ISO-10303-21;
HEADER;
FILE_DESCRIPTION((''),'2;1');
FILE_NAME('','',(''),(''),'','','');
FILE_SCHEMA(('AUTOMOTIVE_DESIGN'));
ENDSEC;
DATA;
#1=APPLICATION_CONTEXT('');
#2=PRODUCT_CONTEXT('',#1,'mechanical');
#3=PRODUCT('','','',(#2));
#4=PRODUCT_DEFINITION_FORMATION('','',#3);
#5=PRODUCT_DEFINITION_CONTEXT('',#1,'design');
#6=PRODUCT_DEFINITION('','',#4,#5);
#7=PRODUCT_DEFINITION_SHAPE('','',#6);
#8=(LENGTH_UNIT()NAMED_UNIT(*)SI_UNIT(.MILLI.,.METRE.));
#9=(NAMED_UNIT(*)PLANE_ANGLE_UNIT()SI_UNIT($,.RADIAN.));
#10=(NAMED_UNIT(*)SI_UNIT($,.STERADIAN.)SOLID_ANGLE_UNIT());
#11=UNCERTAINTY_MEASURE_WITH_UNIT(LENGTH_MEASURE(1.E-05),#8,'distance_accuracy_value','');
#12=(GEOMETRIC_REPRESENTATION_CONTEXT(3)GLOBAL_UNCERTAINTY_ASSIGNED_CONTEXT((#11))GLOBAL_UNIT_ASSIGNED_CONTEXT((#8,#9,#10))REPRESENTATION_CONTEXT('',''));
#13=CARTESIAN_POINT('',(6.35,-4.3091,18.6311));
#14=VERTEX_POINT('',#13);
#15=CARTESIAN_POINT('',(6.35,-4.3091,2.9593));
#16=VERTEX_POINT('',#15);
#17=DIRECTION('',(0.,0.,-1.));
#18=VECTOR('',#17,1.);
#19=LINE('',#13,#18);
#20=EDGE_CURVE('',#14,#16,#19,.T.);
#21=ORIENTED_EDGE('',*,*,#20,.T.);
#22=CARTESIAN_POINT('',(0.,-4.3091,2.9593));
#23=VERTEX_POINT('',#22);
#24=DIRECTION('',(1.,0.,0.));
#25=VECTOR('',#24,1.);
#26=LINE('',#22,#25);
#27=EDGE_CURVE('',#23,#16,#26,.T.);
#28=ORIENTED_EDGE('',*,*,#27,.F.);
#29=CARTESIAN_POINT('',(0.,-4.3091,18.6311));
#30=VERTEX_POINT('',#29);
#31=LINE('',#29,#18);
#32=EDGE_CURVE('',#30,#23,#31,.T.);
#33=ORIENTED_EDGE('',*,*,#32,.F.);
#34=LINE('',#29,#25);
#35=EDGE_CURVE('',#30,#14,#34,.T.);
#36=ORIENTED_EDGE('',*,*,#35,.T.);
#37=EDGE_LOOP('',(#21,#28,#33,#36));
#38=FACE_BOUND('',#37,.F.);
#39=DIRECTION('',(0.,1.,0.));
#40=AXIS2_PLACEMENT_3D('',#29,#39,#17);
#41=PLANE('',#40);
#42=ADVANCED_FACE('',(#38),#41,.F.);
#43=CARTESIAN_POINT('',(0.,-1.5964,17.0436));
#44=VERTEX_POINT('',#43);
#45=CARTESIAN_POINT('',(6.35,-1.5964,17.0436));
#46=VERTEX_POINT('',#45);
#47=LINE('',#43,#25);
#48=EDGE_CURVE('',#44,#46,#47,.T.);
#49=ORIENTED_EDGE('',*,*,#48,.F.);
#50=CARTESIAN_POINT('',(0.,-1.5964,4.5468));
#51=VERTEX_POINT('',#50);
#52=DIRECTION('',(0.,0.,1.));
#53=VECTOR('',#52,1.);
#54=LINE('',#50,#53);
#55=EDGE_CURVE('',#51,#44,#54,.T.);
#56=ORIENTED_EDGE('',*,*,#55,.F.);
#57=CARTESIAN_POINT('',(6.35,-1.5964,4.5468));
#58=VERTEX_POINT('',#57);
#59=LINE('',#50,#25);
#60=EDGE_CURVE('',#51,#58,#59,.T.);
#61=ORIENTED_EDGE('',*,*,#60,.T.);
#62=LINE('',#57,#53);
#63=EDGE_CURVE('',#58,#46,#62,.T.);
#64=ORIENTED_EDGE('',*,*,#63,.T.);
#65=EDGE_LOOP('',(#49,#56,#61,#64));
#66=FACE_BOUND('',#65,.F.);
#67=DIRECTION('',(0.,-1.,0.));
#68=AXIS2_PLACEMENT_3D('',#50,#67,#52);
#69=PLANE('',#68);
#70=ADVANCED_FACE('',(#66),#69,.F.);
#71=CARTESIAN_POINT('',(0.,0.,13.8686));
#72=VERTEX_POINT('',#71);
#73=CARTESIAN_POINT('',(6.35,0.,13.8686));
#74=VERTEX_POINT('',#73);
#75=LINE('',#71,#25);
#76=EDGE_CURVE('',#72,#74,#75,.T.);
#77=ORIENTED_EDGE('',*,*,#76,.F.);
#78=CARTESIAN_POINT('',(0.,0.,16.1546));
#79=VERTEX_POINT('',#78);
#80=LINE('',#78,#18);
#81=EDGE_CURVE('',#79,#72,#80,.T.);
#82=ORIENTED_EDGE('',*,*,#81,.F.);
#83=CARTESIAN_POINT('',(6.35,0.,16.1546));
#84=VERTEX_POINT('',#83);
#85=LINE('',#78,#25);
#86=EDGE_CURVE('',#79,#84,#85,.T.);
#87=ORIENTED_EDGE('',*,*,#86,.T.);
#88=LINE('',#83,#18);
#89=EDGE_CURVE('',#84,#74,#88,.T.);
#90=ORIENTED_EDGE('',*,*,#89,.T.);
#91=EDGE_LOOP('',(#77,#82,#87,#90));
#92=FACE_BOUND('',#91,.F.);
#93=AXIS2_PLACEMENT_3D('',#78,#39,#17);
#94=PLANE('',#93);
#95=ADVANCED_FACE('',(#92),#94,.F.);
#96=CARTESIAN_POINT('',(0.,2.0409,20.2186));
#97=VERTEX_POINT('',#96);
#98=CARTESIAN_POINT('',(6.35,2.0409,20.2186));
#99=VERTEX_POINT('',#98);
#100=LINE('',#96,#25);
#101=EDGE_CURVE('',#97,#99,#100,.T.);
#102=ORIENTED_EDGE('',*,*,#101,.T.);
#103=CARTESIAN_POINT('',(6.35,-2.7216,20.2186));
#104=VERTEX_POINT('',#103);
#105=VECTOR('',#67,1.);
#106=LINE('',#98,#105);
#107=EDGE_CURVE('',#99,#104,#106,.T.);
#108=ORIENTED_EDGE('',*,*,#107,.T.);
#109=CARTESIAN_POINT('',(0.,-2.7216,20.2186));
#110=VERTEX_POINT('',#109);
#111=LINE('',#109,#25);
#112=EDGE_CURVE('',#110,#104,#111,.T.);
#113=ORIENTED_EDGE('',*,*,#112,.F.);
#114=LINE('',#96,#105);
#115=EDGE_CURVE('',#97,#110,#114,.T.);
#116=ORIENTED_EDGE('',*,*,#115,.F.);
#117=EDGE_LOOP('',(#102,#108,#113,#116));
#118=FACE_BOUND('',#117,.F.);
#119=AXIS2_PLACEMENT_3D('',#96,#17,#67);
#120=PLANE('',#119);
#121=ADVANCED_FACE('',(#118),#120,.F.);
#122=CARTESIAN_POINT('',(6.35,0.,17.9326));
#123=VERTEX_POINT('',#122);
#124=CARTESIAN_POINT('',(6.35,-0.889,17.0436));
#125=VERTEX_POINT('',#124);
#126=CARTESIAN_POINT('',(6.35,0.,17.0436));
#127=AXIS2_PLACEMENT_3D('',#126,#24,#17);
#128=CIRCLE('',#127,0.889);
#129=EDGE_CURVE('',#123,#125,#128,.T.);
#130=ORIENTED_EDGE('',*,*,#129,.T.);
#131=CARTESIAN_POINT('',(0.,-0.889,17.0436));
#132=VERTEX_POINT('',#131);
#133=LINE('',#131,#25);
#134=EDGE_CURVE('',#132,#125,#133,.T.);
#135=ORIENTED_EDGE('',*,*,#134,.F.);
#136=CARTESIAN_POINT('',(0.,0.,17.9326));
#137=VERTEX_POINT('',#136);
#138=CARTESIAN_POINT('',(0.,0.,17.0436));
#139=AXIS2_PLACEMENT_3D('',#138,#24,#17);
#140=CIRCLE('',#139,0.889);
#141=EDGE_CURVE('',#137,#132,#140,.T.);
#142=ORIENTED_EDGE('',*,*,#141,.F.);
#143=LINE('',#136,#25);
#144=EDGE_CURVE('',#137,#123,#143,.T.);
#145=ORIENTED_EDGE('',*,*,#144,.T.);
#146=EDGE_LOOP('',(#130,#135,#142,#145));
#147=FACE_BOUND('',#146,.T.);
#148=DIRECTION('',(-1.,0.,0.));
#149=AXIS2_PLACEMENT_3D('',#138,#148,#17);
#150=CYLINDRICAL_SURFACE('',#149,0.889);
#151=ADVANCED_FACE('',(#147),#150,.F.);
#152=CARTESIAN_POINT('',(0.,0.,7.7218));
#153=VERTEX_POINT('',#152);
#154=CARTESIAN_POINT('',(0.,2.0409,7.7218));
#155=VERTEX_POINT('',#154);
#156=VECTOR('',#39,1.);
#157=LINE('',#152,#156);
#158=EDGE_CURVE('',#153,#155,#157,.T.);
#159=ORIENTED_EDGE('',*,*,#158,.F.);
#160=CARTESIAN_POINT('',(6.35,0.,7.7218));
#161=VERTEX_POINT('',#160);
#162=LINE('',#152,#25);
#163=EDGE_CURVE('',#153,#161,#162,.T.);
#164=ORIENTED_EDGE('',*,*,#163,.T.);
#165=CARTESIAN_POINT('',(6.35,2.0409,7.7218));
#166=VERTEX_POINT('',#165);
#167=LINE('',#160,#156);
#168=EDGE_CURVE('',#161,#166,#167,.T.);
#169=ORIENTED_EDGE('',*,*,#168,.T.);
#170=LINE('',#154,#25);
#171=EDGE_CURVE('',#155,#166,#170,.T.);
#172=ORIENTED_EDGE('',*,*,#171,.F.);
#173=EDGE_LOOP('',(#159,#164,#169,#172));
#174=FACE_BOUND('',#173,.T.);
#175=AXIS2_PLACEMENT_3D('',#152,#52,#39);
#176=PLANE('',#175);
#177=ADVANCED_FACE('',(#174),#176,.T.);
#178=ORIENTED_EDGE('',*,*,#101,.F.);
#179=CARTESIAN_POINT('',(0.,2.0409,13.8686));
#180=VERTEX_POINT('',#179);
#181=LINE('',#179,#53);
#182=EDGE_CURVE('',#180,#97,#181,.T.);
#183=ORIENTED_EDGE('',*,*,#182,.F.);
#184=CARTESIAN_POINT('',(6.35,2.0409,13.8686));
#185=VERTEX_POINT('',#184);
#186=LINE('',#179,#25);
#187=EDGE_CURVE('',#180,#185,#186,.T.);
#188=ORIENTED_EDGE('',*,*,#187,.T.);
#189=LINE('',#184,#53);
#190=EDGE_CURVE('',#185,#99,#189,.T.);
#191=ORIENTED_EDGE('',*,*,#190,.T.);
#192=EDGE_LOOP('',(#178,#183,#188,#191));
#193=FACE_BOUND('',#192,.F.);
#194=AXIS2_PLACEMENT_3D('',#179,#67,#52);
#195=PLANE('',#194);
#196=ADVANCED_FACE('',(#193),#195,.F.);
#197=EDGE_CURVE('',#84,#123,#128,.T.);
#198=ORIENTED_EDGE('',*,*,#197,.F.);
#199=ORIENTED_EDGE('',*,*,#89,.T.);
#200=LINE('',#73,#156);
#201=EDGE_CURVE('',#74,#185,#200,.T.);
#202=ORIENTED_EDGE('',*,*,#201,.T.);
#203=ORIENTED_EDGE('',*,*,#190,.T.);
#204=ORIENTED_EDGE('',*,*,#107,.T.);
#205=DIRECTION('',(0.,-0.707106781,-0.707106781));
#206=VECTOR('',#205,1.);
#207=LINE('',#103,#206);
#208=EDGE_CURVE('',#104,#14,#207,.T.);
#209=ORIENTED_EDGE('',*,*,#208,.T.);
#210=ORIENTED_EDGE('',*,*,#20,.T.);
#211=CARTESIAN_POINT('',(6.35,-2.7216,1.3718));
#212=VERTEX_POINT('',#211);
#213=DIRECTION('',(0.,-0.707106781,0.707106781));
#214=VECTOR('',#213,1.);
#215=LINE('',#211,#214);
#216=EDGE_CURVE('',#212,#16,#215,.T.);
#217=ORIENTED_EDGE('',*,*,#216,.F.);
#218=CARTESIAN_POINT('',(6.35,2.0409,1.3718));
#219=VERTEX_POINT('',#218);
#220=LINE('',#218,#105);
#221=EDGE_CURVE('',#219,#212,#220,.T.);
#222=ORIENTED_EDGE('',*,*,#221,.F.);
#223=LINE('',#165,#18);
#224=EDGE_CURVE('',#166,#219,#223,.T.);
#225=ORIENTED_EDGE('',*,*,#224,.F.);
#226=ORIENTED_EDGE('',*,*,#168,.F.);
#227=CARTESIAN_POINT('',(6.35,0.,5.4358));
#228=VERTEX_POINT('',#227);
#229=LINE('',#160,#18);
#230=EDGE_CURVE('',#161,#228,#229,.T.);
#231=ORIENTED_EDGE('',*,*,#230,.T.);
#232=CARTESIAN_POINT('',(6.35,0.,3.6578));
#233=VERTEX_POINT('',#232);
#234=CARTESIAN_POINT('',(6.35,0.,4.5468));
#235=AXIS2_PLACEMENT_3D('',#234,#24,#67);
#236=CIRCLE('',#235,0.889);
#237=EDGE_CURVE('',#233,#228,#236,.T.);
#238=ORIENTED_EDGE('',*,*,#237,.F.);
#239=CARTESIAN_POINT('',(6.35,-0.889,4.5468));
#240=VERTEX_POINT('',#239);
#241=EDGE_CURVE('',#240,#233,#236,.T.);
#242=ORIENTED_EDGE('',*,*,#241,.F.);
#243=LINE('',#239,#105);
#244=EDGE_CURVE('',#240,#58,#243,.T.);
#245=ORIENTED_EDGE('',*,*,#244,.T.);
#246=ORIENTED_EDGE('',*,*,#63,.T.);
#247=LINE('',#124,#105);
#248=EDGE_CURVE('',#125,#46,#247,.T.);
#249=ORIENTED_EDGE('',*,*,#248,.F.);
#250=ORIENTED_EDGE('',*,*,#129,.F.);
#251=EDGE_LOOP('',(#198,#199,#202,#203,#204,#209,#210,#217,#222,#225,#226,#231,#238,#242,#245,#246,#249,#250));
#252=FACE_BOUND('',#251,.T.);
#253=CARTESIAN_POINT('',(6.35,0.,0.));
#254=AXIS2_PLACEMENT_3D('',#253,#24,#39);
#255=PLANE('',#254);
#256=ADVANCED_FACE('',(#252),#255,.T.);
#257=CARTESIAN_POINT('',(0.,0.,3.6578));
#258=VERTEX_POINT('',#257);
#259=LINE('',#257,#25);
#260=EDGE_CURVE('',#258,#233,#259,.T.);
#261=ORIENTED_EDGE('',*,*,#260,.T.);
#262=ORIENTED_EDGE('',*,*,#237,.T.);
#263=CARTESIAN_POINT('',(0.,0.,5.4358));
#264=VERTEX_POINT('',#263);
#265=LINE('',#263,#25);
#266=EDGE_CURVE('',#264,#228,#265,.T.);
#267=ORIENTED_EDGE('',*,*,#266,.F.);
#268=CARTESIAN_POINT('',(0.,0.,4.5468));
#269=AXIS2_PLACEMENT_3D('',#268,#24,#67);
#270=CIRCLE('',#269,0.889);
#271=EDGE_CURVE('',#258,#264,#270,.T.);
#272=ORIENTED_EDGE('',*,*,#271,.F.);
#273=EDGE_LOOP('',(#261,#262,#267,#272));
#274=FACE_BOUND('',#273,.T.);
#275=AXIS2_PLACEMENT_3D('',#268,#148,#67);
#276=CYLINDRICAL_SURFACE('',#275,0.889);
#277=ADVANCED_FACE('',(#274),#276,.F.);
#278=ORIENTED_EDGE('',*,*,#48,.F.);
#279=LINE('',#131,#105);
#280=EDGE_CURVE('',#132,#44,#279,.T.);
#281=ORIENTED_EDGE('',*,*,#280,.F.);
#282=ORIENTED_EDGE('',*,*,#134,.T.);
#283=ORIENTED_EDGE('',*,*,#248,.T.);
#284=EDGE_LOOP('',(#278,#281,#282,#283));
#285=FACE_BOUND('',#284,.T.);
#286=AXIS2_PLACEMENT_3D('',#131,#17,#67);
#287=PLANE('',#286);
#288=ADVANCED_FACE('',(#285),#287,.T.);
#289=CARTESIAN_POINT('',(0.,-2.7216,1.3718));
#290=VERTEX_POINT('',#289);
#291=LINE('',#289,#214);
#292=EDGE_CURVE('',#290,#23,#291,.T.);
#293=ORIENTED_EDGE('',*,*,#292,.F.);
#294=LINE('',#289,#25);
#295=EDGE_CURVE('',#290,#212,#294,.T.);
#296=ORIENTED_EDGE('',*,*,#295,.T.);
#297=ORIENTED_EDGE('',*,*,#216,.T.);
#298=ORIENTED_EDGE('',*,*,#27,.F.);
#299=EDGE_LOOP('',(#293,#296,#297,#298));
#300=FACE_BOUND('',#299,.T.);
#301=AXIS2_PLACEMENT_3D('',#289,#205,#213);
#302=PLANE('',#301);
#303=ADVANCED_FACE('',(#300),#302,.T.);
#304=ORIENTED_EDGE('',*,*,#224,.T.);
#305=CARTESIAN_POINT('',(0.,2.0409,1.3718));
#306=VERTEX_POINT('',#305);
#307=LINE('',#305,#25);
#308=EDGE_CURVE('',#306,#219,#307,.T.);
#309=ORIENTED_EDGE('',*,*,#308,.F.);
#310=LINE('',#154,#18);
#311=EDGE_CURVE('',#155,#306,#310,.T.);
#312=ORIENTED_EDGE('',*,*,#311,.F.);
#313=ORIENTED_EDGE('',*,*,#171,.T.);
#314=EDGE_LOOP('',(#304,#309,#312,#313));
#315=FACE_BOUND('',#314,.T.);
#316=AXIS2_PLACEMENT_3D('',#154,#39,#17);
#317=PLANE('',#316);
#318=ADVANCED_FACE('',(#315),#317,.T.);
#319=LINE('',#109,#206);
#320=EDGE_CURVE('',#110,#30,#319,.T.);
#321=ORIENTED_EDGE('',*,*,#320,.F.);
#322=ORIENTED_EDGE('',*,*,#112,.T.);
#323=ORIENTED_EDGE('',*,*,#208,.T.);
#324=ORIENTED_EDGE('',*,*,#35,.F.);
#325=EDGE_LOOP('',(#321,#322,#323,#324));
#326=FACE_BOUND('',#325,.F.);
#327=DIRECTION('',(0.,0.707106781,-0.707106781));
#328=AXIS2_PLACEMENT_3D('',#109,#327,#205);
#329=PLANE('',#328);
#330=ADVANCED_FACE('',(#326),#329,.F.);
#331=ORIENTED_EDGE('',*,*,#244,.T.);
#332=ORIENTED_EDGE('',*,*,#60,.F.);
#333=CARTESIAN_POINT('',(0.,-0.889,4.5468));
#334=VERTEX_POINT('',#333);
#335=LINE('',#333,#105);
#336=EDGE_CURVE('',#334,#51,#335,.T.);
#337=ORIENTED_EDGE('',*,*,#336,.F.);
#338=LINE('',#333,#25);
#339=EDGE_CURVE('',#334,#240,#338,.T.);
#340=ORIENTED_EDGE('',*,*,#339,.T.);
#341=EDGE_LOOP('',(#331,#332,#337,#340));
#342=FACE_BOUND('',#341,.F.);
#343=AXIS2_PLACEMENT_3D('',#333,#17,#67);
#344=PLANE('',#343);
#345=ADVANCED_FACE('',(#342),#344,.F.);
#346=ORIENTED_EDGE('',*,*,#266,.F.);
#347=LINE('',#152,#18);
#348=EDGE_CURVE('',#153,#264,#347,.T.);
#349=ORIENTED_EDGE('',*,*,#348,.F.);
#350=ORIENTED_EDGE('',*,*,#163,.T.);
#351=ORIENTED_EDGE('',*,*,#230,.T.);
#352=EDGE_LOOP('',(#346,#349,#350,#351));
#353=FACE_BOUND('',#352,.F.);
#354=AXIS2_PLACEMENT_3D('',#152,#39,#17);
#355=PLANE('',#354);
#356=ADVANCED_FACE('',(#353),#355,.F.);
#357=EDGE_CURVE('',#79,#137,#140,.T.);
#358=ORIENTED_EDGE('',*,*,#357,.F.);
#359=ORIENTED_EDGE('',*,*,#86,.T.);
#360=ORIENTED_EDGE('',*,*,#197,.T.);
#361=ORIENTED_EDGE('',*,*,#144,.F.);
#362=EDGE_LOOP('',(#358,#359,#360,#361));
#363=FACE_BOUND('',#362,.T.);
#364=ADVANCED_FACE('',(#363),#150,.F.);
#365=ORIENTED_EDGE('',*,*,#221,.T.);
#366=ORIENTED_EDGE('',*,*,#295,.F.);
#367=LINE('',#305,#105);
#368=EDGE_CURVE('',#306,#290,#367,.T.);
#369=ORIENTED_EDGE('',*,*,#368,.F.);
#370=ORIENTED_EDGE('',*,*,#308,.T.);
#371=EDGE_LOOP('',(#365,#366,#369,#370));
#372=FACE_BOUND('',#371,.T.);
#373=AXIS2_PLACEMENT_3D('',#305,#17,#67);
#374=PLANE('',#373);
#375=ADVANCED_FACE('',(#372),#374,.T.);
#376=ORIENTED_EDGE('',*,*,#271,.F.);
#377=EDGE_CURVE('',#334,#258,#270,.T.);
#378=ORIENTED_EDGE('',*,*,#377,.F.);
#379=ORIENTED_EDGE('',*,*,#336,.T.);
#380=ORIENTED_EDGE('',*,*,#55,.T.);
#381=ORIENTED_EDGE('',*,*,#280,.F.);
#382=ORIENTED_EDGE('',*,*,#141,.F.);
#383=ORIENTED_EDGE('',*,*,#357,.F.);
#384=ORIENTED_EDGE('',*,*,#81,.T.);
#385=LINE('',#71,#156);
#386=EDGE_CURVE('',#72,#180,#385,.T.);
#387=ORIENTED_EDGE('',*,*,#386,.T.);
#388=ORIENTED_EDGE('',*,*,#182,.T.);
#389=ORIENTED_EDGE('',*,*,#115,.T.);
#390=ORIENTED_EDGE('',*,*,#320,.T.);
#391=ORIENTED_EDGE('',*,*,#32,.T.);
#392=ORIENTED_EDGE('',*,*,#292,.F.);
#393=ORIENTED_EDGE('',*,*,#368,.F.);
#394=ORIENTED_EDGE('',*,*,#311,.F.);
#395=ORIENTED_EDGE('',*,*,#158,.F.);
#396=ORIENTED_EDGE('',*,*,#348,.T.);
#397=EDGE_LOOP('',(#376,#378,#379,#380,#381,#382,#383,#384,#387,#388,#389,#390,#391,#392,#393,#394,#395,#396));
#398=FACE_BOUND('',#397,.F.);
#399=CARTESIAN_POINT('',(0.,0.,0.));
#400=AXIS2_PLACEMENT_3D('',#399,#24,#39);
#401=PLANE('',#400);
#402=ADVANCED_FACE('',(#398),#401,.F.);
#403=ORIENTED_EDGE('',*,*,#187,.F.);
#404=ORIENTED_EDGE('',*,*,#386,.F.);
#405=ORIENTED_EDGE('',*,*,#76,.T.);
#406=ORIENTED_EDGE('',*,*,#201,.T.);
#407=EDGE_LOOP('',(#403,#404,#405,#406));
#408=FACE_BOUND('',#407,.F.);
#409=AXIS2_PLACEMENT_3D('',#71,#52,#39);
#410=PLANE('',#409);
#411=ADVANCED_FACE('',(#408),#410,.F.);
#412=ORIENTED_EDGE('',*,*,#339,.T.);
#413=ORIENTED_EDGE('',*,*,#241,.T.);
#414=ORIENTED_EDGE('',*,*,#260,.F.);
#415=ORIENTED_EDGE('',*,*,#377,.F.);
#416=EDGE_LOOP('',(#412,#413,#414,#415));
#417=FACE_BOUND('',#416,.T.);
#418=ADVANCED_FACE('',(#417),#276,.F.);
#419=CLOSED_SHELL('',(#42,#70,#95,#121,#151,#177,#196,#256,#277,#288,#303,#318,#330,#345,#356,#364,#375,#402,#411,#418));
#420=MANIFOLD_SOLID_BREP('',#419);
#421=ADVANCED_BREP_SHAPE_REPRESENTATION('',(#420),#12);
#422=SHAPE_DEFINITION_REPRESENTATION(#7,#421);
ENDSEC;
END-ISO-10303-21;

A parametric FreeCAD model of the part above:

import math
import FreeCAD as App
import Part
import Sketcher
Q = App.Units.Quantity

doc = App.newDocument("Part")
body = doc.addObject("PartDesign::Body", "Body")

# Sketch on YZ plane
sketch1 = doc.addObject("Sketcher::SketchObject", "Sketch")
body.addObject(sketch1)
sketch1.AttachmentSupport = (doc.YZ_Plane, [""])
sketch1.MapMode = "FlatFace"
sketch1.addGeometry(Part.ArcOfCircle(Part.Circle(App.Vector(0, 17.0436, 0), App.Vector(0, 0, 1), 0.889), math.radians(-90), math.radians(180)), False)
sketch1.addGeometry(Part.LineSegment(App.Vector(0, 16.1546, 0), App.Vector(0, 13.8686, 0)), False)
sketch1.addGeometry(Part.LineSegment(App.Vector(0, 13.8686, 0), App.Vector(2.0409, 13.8686, 0)), False)
sketch1.addGeometry(Part.LineSegment(App.Vector(2.0409, 13.8686, 0), App.Vector(2.0409, 20.2186, 0)), False)
sketch1.addGeometry(Part.LineSegment(App.Vector(2.0409, 20.2186, 0), App.Vector(-2.7216, 20.2186, 0)), False)
sketch1.addGeometry(Part.LineSegment(App.Vector(-2.7216, 20.2186, 0), App.Vector(-4.3091, 18.6311, 0)), False)
sketch1.addGeometry(Part.LineSegment(App.Vector(-4.3091, 18.6311, 0), App.Vector(-4.3091, 2.9593, 0)), False)
sketch1.addGeometry(Part.LineSegment(App.Vector(-4.3091, 2.9593, 0), App.Vector(-2.7216, 1.3718, 0)), False)
sketch1.addGeometry(Part.LineSegment(App.Vector(-2.7216, 1.3718, 0), App.Vector(2.0409, 1.3718, 0)), False)
sketch1.addGeometry(Part.LineSegment(App.Vector(2.0409, 1.3718, 0), App.Vector(2.0409, 7.7218, 0)), False)
sketch1.addGeometry(Part.LineSegment(App.Vector(2.0409, 7.7218, 0), App.Vector(0, 7.7218, 0)), False)
sketch1.addGeometry(Part.LineSegment(App.Vector(0, 7.7218, 0), App.Vector(0, 5.4358, 0)), False)
sketch1.addGeometry(Part.ArcOfCircle(Part.Circle(App.Vector(0, 4.5468, 0), App.Vector(0, 0, 1), 0.889), math.radians(180), math.radians(450)), False)
sketch1.addGeometry(Part.LineSegment(App.Vector(-0.889, 4.5468, 0), App.Vector(-1.5964, 4.5468, 0)), False)
sketch1.addGeometry(Part.LineSegment(App.Vector(-1.5964, 4.5468, 0), App.Vector(-1.5964, 17.0436, 0)), False)
sketch1.addGeometry(Part.LineSegment(App.Vector(-1.5964, 17.0436, 0), App.Vector(-0.889, 17.0436, 0)), False)
sketch1.addConstraint(Sketcher.Constraint("Coincident", 0, 1, 1, 1))
sketch1.addConstraint(Sketcher.Constraint("Coincident", 1, 2, 2, 1))
sketch1.addConstraint(Sketcher.Constraint("Coincident", 2, 2, 3, 1))
sketch1.addConstraint(Sketcher.Constraint("Coincident", 3, 2, 4, 1))
sketch1.addConstraint(Sketcher.Constraint("Coincident", 4, 2, 5, 1))
sketch1.addConstraint(Sketcher.Constraint("Coincident", 5, 2, 6, 1))
sketch1.addConstraint(Sketcher.Constraint("Coincident", 6, 2, 7, 1))
sketch1.addConstraint(Sketcher.Constraint("Coincident", 7, 2, 8, 1))
sketch1.addConstraint(Sketcher.Constraint("Coincident", 8, 2, 9, 1))
sketch1.addConstraint(Sketcher.Constraint("Coincident", 9, 2, 10, 1))
sketch1.addConstraint(Sketcher.Constraint("Coincident", 10, 2, 11, 1))
sketch1.addConstraint(Sketcher.Constraint("Coincident", 11, 2, 12, 2))
sketch1.addConstraint(Sketcher.Constraint("Coincident", 12, 1, 13, 1))
sketch1.addConstraint(Sketcher.Constraint("Coincident", 13, 2, 14, 1))
sketch1.addConstraint(Sketcher.Constraint("Coincident", 14, 2, 15, 1))
sketch1.addConstraint(Sketcher.Constraint("Coincident", 15, 2, 0, 2))
sketch1.addConstraint(Sketcher.Constraint("Vertical", 1))
sketch1.addConstraint(Sketcher.Constraint("Horizontal", 2))
sketch1.addConstraint(Sketcher.Constraint("Vertical", 3))
sketch1.addConstraint(Sketcher.Constraint("Horizontal", 4))
sketch1.addConstraint(Sketcher.Constraint("Vertical", 6))
sketch1.addConstraint(Sketcher.Constraint("Horizontal", 8))
sketch1.addConstraint(Sketcher.Constraint("Vertical", 9))
sketch1.addConstraint(Sketcher.Constraint("Horizontal", 10))
sketch1.addConstraint(Sketcher.Constraint("Vertical", 11))
sketch1.addConstraint(Sketcher.Constraint("Horizontal", 13))
sketch1.addConstraint(Sketcher.Constraint("Vertical", 14))
sketch1.addConstraint(Sketcher.Constraint("Horizontal", 15))
sketch1.addConstraint(Sketcher.Constraint("Equal", 0, 12))
sketch1.addConstraint(Sketcher.Constraint("PointOnObject", 0, 3, -2))
sketch1.addConstraint(Sketcher.Constraint("PointOnObject", 12, 3, -2))
sketch1.addConstraint(Sketcher.Constraint("PointOnObject", 0, 1, -2))
sketch1.addConstraint(Sketcher.Constraint("PointOnObject", 10, 2, -2))
sketch1.addConstraint(Sketcher.Constraint("Perpendicular", 5, 7))
sketch1.addConstraint(Sketcher.Constraint("Horizontal", 0, 3, 14, 2))
sketch1.addConstraint(Sketcher.Constraint("Vertical", 4, 2, 7, 2))
sketch1.addConstraint(Sketcher.Constraint("Vertical", 3, 2, 8, 2))
sketch1.addConstraint(Sketcher.Constraint("Equal", 3, 9))
sketch1.addConstraint(Sketcher.Constraint("Equal", 1, 11))
sketch1.addConstraint(Sketcher.Constraint("Equal", 5, 7))
sketch1.addConstraint(Sketcher.Constraint("Radius", 0, Q("0.035 in")))
sketch1.addConstraint(Sketcher.Constraint("DistanceY", 3, 1, 3, 2, Q("0.25 in")))
sketch1.addConstraint(Sketcher.Constraint("DistanceX", 5, 2, 3, 2, Q("0.25 in")))
sketch1.addConstraint(Sketcher.Constraint("DistanceY", 1, 2, 0, 3, Q("0.125 in")))
sketch1.addConstraint(Sketcher.Constraint("DistanceX", 5, 2, 4, 2, Q("0.0625 in")))
sketch1.addConstraint(Sketcher.Constraint("DistanceY", 12, 1, 11, 2, Q("0.035 in")))
sketch1.addConstraint(Sketcher.Constraint("DistanceY", 6, 2, 6, 1, Q("0.617 in")))
sketch1.addConstraint(Sketcher.Constraint("DistanceY", -1, 1, 0, 3, Q("0.671 in")))
sketch1.addConstraint(Sketcher.Constraint("DistanceX", 2, 1, 2, 2, Q("2.041 mm")))
sketch1.addConstraint(Sketcher.Constraint("DistanceX", 13, 2, 13, 1, Q("0.7074 mm")))
pad1 = doc.addObject("PartDesign::Pad", "Pad")
body.addObject(pad1)
pad1.Profile = sketch1
pad1.Length = Q("0.25 in")

doc.recompute()
